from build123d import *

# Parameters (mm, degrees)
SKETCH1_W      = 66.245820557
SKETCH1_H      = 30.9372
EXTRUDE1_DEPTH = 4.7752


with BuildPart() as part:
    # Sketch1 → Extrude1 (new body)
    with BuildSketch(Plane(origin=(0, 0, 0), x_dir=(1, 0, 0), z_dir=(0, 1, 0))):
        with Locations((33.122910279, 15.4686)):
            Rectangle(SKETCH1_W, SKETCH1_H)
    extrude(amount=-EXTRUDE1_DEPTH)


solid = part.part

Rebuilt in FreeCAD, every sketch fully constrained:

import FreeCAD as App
import Part
import Sketcher
Q = App.Units.Quantity


def add_polygon(sketch, points):
    """Adds a closed chain of lines whose ends are joined by coincident constraints."""
    first, n = sketch.GeometryCount, len(points)
    for a, b in zip(points, points[1:] + points[:1]):
        sketch.addGeometry(Part.LineSegment(App.Vector(*a, 0), App.Vector(*b, 0)), False)
    for i in range(n):
        sketch.addConstraint(Sketcher.Constraint("Coincident", first + i, 2, first + (i + 1) % n, 1))

doc = App.newDocument("Part")
body = doc.addObject("PartDesign::Body", "Body")

# Sketch on XZ plane
sketch1 = body.newObject("Sketcher::SketchObject", "Sketch")
sketch1.AttachmentSupport = (doc.getObject("XZ_Plane"), [""])
sketch1.MapMode = "FlatFace"
add_polygon(sketch1, [(0, -30.9372), (0, 0), (66.245821, 0), (66.245821, -30.9372)])  # lines 0-3
sketch1.addConstraint(Sketcher.Constraint("Vertical", 0))
sketch1.addConstraint(Sketcher.Constraint("Horizontal", 1))
sketch1.addConstraint(Sketcher.Constraint("Vertical", 2))
sketch1.addConstraint(Sketcher.Constraint("Horizontal", 3))
sketch1.addConstraint(Sketcher.Constraint("Coincident", 0, 2, -1, 1))
sketch1.addConstraint(Sketcher.Constraint("DistanceY", 0, 1, 0, 2, Q("1.218 in")))
sketch1.addConstraint(Sketcher.Constraint("DistanceX", 1, 1, 1, 2, Q("66.245821 mm")))
pad1 = body.newObject("PartDesign::Pad", "Pad")
pad1.Profile = sketch1
pad1.Length = Q("0.188 in")

doc.recompute()
